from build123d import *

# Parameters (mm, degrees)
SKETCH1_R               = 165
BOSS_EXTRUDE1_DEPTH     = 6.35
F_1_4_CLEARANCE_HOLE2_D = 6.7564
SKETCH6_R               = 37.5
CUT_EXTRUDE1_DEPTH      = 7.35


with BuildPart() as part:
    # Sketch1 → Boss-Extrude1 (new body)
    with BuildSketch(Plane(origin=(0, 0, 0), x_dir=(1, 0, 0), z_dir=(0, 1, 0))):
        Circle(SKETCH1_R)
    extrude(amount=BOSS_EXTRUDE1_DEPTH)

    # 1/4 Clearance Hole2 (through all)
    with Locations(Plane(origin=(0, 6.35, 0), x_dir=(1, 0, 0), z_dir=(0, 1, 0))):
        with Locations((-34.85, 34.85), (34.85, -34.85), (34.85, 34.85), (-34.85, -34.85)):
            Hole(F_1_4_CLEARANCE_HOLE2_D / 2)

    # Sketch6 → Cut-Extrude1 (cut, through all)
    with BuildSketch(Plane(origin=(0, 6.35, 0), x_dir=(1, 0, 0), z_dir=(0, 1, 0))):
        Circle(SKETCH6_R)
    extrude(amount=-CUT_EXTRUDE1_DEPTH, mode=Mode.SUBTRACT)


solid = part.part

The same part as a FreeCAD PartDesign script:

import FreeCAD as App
import Part
import Sketcher
from FreeCAD import Vector

doc = App.newDocument("Part")
params = doc.addObject("Spreadsheet::Sheet", "Params")
for row, (alias, value) in enumerate([
    ("sketch1_diameter", "330 mm"),
    ("pad1_length", "6.35 mm"),
    ("hole_diameter", "6.7564 mm"),
    ("sketch3_diameter", "75 mm"),
], start=1):
    params.set(f"A{row}", alias)
    params.set(f"B{row}", "=" + value)
    params.setAlias(f"B{row}", alias)

body = doc.addObject("PartDesign::Body", "Body")

sketch1 = body.newObject("Sketcher::SketchObject", "Sketch")
sketch1.AttachmentSupport = (doc.getObject("XZ_Plane"), [""])
sketch1.MapMode = "FlatFace"
sketch1.addGeometry(Part.Circle(Vector(0, 0, 0), Vector(0, 0, 1), 165), False)
sketch1.addConstraint(Sketcher.Constraint("Coincident", 0, 3, -1, 1))
sketch1.addConstraint(Sketcher.Constraint("Diameter", 0, 330.0))
sketch1.setExpression("Constraints[1]", "Params.sketch1_diameter")
pad1 = body.newObject("PartDesign::Pad", "Pad")
pad1.Profile = sketch1
pad1.setExpression("Length", "Params.pad1_length")
pad1.Reversed = True

sketch2 = body.newObject("Sketcher::SketchObject", "Sketch001")
sketch2.AttachmentSupport = (doc.getObject("XZ_Plane"), [""])
sketch2.MapMode = "FlatFace"
sketch2.AttachmentOffset = App.Placement(Vector(0, 0, -6.35), App.Rotation())
sketch2.addGeometry(Part.Circle(Vector(-34.85, -34.85, 0), Vector(0, 0, 1), 3.3782), False)
sketch2.addGeometry(Part.Circle(Vector(34.85, 34.85, 0), Vector(0, 0, 1), 3.3782), False)
sketch2.addGeometry(Part.Circle(Vector(34.85, -34.85, 0), Vector(0, 0, 1), 3.3782), False)
sketch2.addGeometry(Part.Circle(Vector(-34.85, 34.85, 0), Vector(0, 0, 1), 3.3782), False)
sketch2.addConstraint(Sketcher.Constraint("Equal", 0, 1))
sketch2.addConstraint(Sketcher.Constraint("Equal", 1, 2))
sketch2.addConstraint(Sketcher.Constraint("Equal", 2, 3))
sketch2.addConstraint(Sketcher.Constraint("Symmetric", 0, 3, 1, 3, -1, 1))
sketch2.addConstraint(Sketcher.Constraint("Symmetric", 2, 3, 3, 3, -1, 1))
sketch2.addConstraint(Sketcher.Constraint("Symmetric", 0, 3, 2, 3, -2))
sketch2.addConstraint(Sketcher.Constraint("Diameter", 0, 6.7564))
sketch2.addConstraint(Sketcher.Constraint("DistanceX", 0, 3, 1, 3, 69.7))
sketch2.addConstraint(Sketcher.Constraint("DistanceY", 0, 3, 1, 3, 69.7))
doc.recompute()
hole = body.newObject("PartDesign::Hole", "Hole")
hole.Profile = sketch2
hole.ThreadType = "None"
hole.setExpression("Diameter", "Params.hole_diameter")
hole.DepthType = "ThroughAll"
hole.Reversed = True

sketch3 = body.newObject("Sketcher::SketchObject", "Sketch002")
sketch3.AttachmentSupport = (doc.getObject("XZ_Plane"), [""])
sketch3.MapMode = "FlatFace"
sketch3.AttachmentOffset = App.Placement(Vector(0, 0, -6.35), App.Rotation())
sketch3.addGeometry(Part.Circle(Vector(0, 0, 0), Vector(0, 0, 1), 37.5), False)
sketch3.addConstraint(Sketcher.Constraint("Coincident", 0, 3, -1, 1))
sketch3.addConstraint(Sketcher.Constraint("Diameter", 0, 75.0))
sketch3.setExpression("Constraints[1]", "Params.sketch3_diameter")
pocket1 = body.newObject("PartDesign::Pocket", "Pocket")
pocket1.Profile = sketch3
pocket1.Type = "ThroughAll"
pocket1.Reversed = True

doc.recompute()
